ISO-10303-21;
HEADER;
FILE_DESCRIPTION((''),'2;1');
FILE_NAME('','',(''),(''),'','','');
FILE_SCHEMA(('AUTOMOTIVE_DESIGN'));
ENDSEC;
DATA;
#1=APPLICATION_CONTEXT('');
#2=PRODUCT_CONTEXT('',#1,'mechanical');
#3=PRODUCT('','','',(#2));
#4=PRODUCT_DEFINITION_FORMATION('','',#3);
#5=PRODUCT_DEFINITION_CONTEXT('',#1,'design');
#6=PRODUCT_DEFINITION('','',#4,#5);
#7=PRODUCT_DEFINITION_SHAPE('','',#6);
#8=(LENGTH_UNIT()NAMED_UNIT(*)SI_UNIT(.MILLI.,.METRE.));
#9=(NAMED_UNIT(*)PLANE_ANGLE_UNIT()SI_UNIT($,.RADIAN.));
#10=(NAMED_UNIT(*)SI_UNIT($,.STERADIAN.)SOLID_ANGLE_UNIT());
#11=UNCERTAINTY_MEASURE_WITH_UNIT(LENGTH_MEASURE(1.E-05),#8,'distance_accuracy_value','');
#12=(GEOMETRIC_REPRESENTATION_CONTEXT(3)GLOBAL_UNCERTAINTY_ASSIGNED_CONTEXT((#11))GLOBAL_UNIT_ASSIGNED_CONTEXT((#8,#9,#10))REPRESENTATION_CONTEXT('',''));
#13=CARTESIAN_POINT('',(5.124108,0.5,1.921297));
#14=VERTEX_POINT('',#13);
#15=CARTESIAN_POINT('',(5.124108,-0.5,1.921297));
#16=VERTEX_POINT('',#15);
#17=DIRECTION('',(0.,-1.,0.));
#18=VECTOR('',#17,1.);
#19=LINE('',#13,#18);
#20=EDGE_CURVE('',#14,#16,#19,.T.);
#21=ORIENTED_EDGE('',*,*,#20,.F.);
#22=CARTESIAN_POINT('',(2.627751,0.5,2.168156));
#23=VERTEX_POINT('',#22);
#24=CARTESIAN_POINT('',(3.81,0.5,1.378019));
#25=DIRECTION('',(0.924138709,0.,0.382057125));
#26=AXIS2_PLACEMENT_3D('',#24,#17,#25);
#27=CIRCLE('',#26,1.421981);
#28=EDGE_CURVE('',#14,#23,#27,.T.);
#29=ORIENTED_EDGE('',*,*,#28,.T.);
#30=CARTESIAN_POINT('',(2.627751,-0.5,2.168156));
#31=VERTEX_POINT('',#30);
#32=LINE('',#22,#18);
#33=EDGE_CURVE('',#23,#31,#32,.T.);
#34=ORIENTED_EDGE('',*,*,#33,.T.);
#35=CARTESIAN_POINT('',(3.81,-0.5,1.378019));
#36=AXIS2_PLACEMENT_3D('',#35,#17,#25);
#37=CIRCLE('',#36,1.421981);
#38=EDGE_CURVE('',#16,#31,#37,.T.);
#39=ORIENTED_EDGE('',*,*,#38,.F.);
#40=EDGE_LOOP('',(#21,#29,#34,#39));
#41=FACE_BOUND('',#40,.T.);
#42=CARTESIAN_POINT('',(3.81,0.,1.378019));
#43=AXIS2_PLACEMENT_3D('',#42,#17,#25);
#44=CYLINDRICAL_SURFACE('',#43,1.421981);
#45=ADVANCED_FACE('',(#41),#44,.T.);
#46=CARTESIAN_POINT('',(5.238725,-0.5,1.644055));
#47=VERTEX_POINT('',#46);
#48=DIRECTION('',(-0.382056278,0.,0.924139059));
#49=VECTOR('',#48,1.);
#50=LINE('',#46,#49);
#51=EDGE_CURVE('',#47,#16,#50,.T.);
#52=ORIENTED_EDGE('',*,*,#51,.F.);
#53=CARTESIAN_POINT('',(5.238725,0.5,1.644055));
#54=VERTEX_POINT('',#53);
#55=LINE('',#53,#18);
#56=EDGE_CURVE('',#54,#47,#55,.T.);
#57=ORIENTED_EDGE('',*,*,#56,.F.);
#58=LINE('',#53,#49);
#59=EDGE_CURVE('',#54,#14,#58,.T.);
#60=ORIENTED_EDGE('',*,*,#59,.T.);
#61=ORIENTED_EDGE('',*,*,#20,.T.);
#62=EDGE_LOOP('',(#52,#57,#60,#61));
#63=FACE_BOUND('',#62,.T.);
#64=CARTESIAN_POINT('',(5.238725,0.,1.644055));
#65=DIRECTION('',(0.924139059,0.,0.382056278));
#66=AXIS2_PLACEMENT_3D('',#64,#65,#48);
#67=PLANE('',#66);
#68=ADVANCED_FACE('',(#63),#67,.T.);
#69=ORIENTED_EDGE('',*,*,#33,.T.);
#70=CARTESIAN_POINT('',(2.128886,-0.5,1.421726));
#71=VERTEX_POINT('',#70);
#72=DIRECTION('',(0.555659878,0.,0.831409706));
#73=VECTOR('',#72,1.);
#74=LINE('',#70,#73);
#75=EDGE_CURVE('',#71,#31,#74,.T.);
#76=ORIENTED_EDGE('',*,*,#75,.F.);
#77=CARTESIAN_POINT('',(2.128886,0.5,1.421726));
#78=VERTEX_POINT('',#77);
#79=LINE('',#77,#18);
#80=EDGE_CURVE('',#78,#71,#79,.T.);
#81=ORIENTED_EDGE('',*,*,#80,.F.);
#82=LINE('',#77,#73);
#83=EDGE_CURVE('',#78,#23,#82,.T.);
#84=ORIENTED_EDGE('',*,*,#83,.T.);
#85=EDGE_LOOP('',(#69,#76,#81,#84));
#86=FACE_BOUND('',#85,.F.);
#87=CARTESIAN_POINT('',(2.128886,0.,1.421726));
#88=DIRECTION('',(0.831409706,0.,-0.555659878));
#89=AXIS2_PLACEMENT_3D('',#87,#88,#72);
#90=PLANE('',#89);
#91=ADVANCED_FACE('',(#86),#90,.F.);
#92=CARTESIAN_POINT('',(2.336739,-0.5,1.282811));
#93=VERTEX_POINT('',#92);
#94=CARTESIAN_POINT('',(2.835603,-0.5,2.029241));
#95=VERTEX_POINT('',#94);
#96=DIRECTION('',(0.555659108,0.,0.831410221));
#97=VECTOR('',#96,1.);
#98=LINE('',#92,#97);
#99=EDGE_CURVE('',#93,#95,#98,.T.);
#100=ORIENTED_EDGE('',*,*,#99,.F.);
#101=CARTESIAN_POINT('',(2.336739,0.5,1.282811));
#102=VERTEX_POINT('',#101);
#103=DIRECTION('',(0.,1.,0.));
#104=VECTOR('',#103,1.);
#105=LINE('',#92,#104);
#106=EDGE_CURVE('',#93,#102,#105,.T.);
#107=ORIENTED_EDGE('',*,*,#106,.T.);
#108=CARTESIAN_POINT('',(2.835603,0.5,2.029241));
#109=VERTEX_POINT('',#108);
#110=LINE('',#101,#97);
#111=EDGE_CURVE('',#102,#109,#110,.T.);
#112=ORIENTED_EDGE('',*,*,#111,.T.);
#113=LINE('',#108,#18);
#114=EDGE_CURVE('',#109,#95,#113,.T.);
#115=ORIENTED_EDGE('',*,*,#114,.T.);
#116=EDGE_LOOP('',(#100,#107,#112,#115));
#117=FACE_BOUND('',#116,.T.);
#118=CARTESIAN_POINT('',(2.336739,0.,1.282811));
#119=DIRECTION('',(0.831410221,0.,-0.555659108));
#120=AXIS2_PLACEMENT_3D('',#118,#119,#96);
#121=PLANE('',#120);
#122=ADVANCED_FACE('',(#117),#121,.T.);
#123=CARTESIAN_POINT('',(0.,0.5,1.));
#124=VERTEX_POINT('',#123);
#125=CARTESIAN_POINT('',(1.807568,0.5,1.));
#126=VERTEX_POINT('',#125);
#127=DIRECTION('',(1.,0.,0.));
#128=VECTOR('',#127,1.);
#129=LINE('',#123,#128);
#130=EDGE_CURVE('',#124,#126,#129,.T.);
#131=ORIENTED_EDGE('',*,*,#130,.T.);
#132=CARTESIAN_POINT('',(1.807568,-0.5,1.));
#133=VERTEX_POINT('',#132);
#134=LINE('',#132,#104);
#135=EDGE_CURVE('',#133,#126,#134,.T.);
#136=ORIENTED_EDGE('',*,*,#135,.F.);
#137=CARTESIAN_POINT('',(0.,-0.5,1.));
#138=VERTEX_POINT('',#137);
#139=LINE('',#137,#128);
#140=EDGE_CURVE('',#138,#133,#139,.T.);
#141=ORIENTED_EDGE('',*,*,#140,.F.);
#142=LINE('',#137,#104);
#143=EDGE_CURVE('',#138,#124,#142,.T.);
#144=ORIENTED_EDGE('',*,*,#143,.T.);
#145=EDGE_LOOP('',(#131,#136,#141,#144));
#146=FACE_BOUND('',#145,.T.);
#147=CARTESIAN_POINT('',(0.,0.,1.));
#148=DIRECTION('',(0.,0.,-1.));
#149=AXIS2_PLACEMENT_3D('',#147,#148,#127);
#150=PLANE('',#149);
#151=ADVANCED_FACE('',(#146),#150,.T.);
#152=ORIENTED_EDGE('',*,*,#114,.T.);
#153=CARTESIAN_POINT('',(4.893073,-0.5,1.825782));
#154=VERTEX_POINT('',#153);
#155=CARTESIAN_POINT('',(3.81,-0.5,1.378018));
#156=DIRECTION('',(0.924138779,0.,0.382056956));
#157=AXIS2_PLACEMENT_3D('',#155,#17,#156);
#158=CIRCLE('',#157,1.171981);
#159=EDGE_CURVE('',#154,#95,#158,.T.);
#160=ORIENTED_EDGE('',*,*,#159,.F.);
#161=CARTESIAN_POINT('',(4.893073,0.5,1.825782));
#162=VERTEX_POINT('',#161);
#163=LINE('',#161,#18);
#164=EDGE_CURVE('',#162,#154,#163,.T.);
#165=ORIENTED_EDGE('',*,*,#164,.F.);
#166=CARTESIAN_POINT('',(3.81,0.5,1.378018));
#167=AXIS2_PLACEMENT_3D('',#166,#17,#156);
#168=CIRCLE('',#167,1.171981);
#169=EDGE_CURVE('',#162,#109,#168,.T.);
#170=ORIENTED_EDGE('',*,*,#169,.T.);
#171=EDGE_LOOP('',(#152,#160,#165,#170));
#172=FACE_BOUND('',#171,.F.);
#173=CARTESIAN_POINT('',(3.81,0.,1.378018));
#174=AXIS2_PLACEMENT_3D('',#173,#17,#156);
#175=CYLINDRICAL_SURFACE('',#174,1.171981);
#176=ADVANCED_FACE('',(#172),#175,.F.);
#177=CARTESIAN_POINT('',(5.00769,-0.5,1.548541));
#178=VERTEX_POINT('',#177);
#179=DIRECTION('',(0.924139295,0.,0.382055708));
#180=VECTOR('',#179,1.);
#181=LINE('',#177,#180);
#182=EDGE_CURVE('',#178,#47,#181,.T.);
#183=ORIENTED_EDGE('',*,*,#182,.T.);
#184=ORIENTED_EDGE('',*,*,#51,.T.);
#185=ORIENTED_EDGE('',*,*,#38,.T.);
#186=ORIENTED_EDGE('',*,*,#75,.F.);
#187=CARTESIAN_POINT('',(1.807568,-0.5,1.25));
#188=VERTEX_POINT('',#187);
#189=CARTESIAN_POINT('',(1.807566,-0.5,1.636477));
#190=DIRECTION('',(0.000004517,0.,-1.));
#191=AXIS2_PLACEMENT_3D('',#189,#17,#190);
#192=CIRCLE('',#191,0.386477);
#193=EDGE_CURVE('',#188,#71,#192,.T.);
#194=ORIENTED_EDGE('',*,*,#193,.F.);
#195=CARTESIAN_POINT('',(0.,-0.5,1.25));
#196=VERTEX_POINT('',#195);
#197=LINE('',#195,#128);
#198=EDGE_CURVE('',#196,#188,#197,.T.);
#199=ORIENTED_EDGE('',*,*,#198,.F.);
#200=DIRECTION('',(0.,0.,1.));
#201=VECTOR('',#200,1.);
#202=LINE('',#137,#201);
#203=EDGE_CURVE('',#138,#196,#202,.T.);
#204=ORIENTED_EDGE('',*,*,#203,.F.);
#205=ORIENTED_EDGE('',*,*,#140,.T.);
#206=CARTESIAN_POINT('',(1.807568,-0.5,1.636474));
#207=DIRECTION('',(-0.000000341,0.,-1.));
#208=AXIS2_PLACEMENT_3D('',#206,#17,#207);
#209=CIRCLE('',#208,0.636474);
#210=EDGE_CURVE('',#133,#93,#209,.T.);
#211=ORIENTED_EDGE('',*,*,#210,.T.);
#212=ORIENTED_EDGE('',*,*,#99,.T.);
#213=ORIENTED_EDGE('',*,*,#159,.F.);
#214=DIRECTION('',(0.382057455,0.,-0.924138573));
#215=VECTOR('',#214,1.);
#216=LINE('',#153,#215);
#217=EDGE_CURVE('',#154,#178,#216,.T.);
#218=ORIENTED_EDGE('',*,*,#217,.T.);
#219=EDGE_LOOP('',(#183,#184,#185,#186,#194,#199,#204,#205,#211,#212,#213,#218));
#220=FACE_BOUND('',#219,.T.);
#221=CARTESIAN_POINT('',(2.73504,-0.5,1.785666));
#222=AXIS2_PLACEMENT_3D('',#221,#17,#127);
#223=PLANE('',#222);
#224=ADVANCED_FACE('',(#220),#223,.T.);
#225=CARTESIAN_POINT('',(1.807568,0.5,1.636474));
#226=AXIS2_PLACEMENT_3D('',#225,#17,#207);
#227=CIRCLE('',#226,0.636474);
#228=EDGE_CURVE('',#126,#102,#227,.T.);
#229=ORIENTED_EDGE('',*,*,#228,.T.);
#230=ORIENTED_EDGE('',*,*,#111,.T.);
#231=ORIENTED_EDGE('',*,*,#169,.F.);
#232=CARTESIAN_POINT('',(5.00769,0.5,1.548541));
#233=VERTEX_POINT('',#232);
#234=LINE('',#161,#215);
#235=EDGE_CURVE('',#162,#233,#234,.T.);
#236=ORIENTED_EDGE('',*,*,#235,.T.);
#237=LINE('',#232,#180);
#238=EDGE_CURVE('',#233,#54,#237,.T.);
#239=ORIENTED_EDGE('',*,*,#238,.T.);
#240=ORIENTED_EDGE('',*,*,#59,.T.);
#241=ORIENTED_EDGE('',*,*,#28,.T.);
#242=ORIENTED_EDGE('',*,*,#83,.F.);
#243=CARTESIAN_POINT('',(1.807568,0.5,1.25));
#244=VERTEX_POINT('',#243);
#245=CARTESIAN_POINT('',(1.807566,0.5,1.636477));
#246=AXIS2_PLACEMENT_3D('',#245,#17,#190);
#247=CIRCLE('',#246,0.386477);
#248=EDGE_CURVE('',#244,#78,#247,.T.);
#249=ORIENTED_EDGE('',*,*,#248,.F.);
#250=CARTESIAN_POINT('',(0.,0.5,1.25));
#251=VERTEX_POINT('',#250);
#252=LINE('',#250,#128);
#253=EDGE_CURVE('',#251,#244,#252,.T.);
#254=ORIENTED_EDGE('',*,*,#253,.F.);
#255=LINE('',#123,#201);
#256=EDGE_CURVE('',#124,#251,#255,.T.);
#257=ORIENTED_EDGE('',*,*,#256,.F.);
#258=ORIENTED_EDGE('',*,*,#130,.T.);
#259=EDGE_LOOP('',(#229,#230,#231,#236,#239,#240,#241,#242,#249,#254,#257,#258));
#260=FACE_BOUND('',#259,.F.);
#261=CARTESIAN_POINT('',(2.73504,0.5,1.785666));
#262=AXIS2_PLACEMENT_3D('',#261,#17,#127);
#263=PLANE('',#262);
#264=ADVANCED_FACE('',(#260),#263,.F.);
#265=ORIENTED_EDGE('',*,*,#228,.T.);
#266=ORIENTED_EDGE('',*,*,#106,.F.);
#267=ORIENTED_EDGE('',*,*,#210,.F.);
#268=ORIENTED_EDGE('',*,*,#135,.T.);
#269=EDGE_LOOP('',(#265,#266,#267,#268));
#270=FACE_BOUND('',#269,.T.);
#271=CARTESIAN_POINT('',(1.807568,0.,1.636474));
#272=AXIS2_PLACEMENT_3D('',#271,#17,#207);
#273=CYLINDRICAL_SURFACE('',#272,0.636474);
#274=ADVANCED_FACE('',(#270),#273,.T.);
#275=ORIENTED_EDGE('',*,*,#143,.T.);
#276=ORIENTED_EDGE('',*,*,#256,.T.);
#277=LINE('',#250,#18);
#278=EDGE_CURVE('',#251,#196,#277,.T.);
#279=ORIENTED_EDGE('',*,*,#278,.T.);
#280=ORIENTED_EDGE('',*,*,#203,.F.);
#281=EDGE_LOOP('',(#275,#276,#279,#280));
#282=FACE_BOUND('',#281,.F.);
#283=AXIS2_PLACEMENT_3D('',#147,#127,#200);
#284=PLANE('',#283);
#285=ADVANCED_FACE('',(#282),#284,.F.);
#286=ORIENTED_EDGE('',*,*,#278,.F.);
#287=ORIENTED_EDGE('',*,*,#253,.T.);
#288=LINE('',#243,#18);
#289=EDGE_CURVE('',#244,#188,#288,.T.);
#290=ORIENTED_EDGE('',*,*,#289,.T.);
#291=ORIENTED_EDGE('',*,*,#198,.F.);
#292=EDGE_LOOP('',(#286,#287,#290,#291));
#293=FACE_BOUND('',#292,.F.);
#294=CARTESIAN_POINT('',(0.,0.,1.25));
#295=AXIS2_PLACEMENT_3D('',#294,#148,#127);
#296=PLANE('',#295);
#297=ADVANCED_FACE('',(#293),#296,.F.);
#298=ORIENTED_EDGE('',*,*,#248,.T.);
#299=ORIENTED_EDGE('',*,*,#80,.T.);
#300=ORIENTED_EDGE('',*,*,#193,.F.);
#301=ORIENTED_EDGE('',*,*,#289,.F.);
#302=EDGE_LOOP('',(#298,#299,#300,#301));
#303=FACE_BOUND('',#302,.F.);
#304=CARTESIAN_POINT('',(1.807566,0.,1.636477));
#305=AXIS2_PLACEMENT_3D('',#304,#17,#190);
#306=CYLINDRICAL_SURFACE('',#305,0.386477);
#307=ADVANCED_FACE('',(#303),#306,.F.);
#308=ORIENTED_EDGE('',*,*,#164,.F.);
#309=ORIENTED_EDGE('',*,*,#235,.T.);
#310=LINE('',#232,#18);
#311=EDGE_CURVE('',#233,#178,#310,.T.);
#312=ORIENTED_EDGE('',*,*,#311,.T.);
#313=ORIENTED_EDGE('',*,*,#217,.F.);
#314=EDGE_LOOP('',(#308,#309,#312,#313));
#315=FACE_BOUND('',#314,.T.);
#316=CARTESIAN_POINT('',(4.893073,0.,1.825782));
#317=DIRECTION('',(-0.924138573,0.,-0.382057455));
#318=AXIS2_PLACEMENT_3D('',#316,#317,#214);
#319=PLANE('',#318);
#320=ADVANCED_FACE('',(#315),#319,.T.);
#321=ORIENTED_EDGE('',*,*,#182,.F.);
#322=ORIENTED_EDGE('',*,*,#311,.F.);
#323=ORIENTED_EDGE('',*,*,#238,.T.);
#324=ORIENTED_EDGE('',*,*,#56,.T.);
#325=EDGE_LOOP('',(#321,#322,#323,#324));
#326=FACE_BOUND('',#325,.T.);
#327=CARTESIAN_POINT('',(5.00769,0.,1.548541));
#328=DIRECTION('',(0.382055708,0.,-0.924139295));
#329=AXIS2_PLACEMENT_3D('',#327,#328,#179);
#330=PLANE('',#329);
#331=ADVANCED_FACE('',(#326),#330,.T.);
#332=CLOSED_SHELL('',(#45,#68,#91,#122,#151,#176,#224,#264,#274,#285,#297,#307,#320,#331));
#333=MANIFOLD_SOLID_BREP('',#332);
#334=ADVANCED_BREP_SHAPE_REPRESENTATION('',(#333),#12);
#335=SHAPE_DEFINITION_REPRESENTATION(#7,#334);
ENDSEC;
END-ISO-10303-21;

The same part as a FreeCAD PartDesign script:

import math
import FreeCAD as App
import Part
import Sketcher
from FreeCAD import Vector

doc = App.newDocument("Part")
body = doc.addObject("PartDesign::Body", "Body")

# Sketch on XZ plane
sketch1 = body.newObject("Sketcher::SketchObject", "Sketch")
sketch1.AttachmentSupport = (doc.getObject("XZ_Plane"), [""])
sketch1.MapMode = "FlatFace"
sketch1.addGeometry([
    Part.LineSegment(Vector(2.34, 1.28, 0), Vector(2.84, 2.03, 0)),  # 0
    Part.ArcOfCircle(Part.Circle(Vector(3.81, 1.38, 0), Vector(0, 0, 1), 1.17), math.radians(22), math.radians(146)),  # 1
    Part.LineSegment(Vector(4.89, 1.83, 0), Vector(5.01, 1.55, 0)),  # 2
    Part.LineSegment(Vector(5.01, 1.55, 0), Vector(5.24, 1.64, 0)),  # 3
    Part.LineSegment(Vector(5.24, 1.64, 0), Vector(5.12, 1.92, 0)),  # 4
    Part.ArcOfCircle(Part.Circle(Vector(3.81, 1.38, 0), Vector(0, 0, 1), 1.42), math.radians(22), math.radians(146)),  # 5
    Part.LineSegment(Vector(2.63, 2.17, 0), Vector(2.13, 1.42, 0)),  # 6
    Part.ArcOfCircle(Part.Circle(Vector(1.81, 1.64, 0), Vector(0, 0, 1), 0.39), math.radians(-90), math.radians(-34)),  # 7
    Part.LineSegment(Vector(1.81, 1.25, 0), Vector(0, 1.25, 0)),  # 8
    Part.LineSegment(Vector(0, 1.25, 0), Vector(0, 1, 0)),  # 9
    Part.LineSegment(Vector(0, 1, 0), Vector(1.81, 1, 0)),  # 10
    Part.ArcOfCircle(Part.Circle(Vector(1.81, 1.64, 0), Vector(0, 0, 1), 0.64), math.radians(-90), math.radians(-34)),  # 11
], False)
sketch1.addConstraint([
    Sketcher.Constraint("Tangent", 0, 2, 1, 2),
    Sketcher.Constraint("Tangent", 1, 1, 2, 1),
    Sketcher.Constraint("Coincident", 2, 2, 3, 1),
    Sketcher.Constraint("Coincident", 3, 2, 4, 1),
    Sketcher.Constraint("Tangent", 4, 2, 5, 1),
    Sketcher.Constraint("Tangent", 5, 2, 6, 1),
    Sketcher.Constraint("Coincident", 6, 2, 7, 2),
    Sketcher.Constraint("Coincident", 7, 1, 8, 1),
    Sketcher.Constraint("Coincident", 8, 2, 9, 1),
    Sketcher.Constraint("Coincident", 9, 2, 10, 1),
    Sketcher.Constraint("Tangent", 10, 2, 11, 1),
    Sketcher.Constraint("Tangent", 11, 2, 0, 1),
    Sketcher.Constraint("Horizontal", 8),
    Sketcher.Constraint("Vertical", 9),
    Sketcher.Constraint("Horizontal", 10),
    Sketcher.Constraint("Coincident", 5, 3, 1, 3),
    Sketcher.Constraint("Coincident", 11, 3, 7, 3),
    Sketcher.Constraint("PointOnObject", 8, 2, -2),
    Sketcher.Constraint("Perpendicular", 2, 3),
    Sketcher.Constraint("Perpendicular", 3, 4),
    Sketcher.Constraint("Parallel", 0, 6),
    Sketcher.Constraint("Vertical", 11, 3, 7, 1),
    Sketcher.Constraint("Equal", 0, 6),
    Sketcher.Constraint("DistanceY", -1, 1, 9, 2, 1.0),
    Sketcher.Constraint("Distance", 2, 0.299999),
    Sketcher.Constraint("DistanceY", 9, 2, 9, 1, 0.25),
    Sketcher.Constraint("DistanceX", -1, 1, 1, 3, 3.81),
    Sketcher.Constraint("Radius", 1, 1.171981),
    Sketcher.Constraint("Radius", 7, 0.386477),
    Sketcher.Constraint("DistanceX", 8, 2, 8, 1, 1.807568),
    Sketcher.Constraint("DistanceY", 2, 2, 0, 2, 0.4807),
    Sketcher.Constraint("Distance", 6, 0.897788),
])
pad1 = body.newObject("PartDesign::Pad", "Pad")
pad1.Profile = sketch1
pad1.Length = 1
pad1.Midplane = True

doc.recompute()
